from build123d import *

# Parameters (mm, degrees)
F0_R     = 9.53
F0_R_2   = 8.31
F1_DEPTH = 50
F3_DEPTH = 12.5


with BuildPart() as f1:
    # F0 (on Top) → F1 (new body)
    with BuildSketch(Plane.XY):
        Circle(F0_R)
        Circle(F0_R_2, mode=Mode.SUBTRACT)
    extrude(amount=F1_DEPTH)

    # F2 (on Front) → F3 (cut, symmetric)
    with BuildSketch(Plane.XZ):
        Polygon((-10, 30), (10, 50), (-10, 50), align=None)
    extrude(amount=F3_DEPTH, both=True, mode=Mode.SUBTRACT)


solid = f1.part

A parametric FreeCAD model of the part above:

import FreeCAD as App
import Part
import Sketcher

V = App.Vector

doc = App.newDocument("Part")
body = doc.addObject("PartDesign::Body", "Body")

sketch1 = body.newObject("Sketcher::SketchObject", "Sketch")
sketch1.AttachmentSupport = (doc.getObject("XY_Plane"), [""])
sketch1.MapMode = "FlatFace"
sketch1.addGeometry([
    Part.Circle(V(0, 0, 0), V(0, 0, 1), 10),
    Part.Circle(V(0, 0, 0), V(0, 0, 1), 8),
], False)
sketch1.addConstraint([
    Sketcher.Constraint("Coincident", 0, 3, -1, 1),
    Sketcher.Constraint("Coincident", 1, 3, -1, 1),
    Sketcher.Constraint("Diameter", 0, 19.06),
    Sketcher.Constraint("Diameter", 1, 16.62),
])
pad1 = body.newObject("PartDesign::Pad", "Pad")
pad1.Profile = sketch1
pad1.Length = 50

sketch2 = body.newObject("Sketcher::SketchObject", "Sketch001")
sketch2.AttachmentSupport = (doc.getObject("XZ_Plane"), [""])
sketch2.MapMode = "FlatFace"
sketch2.addGeometry([
    Part.LineSegment(V(-10, 30, 0), V(10, 50, 0)),
    Part.LineSegment(V(10, 50, 0), V(-10, 50, 0)),
    Part.LineSegment(V(-10, 50, 0), V(-10, 30, 0)),
], False)
sketch2.addConstraint([
    Sketcher.Constraint("Coincident", 0, 2, 1, 1),
    Sketcher.Constraint("Coincident", 1, 2, 2, 1),
    Sketcher.Constraint("Coincident", 2, 2, 0, 1),
    Sketcher.Constraint("Horizontal", 1),
    Sketcher.Constraint("Vertical", 2),
    Sketcher.Constraint("Equal", 1, 2),
    Sketcher.Constraint("DistanceX", 1, 2, 1, 1, 20.0),
    Sketcher.Constraint("DistanceX", -1, 1, 0, 2, 10.0),
    Sketcher.Constraint("DistanceY", -1, 1, 0, 2, 50.0),
])
pocket1 = body.newObject("PartDesign::Pocket", "Pocket")
pocket1.Profile = sketch2
pocket1.Length = 25
pocket1.Midplane = True

doc.recompute()
